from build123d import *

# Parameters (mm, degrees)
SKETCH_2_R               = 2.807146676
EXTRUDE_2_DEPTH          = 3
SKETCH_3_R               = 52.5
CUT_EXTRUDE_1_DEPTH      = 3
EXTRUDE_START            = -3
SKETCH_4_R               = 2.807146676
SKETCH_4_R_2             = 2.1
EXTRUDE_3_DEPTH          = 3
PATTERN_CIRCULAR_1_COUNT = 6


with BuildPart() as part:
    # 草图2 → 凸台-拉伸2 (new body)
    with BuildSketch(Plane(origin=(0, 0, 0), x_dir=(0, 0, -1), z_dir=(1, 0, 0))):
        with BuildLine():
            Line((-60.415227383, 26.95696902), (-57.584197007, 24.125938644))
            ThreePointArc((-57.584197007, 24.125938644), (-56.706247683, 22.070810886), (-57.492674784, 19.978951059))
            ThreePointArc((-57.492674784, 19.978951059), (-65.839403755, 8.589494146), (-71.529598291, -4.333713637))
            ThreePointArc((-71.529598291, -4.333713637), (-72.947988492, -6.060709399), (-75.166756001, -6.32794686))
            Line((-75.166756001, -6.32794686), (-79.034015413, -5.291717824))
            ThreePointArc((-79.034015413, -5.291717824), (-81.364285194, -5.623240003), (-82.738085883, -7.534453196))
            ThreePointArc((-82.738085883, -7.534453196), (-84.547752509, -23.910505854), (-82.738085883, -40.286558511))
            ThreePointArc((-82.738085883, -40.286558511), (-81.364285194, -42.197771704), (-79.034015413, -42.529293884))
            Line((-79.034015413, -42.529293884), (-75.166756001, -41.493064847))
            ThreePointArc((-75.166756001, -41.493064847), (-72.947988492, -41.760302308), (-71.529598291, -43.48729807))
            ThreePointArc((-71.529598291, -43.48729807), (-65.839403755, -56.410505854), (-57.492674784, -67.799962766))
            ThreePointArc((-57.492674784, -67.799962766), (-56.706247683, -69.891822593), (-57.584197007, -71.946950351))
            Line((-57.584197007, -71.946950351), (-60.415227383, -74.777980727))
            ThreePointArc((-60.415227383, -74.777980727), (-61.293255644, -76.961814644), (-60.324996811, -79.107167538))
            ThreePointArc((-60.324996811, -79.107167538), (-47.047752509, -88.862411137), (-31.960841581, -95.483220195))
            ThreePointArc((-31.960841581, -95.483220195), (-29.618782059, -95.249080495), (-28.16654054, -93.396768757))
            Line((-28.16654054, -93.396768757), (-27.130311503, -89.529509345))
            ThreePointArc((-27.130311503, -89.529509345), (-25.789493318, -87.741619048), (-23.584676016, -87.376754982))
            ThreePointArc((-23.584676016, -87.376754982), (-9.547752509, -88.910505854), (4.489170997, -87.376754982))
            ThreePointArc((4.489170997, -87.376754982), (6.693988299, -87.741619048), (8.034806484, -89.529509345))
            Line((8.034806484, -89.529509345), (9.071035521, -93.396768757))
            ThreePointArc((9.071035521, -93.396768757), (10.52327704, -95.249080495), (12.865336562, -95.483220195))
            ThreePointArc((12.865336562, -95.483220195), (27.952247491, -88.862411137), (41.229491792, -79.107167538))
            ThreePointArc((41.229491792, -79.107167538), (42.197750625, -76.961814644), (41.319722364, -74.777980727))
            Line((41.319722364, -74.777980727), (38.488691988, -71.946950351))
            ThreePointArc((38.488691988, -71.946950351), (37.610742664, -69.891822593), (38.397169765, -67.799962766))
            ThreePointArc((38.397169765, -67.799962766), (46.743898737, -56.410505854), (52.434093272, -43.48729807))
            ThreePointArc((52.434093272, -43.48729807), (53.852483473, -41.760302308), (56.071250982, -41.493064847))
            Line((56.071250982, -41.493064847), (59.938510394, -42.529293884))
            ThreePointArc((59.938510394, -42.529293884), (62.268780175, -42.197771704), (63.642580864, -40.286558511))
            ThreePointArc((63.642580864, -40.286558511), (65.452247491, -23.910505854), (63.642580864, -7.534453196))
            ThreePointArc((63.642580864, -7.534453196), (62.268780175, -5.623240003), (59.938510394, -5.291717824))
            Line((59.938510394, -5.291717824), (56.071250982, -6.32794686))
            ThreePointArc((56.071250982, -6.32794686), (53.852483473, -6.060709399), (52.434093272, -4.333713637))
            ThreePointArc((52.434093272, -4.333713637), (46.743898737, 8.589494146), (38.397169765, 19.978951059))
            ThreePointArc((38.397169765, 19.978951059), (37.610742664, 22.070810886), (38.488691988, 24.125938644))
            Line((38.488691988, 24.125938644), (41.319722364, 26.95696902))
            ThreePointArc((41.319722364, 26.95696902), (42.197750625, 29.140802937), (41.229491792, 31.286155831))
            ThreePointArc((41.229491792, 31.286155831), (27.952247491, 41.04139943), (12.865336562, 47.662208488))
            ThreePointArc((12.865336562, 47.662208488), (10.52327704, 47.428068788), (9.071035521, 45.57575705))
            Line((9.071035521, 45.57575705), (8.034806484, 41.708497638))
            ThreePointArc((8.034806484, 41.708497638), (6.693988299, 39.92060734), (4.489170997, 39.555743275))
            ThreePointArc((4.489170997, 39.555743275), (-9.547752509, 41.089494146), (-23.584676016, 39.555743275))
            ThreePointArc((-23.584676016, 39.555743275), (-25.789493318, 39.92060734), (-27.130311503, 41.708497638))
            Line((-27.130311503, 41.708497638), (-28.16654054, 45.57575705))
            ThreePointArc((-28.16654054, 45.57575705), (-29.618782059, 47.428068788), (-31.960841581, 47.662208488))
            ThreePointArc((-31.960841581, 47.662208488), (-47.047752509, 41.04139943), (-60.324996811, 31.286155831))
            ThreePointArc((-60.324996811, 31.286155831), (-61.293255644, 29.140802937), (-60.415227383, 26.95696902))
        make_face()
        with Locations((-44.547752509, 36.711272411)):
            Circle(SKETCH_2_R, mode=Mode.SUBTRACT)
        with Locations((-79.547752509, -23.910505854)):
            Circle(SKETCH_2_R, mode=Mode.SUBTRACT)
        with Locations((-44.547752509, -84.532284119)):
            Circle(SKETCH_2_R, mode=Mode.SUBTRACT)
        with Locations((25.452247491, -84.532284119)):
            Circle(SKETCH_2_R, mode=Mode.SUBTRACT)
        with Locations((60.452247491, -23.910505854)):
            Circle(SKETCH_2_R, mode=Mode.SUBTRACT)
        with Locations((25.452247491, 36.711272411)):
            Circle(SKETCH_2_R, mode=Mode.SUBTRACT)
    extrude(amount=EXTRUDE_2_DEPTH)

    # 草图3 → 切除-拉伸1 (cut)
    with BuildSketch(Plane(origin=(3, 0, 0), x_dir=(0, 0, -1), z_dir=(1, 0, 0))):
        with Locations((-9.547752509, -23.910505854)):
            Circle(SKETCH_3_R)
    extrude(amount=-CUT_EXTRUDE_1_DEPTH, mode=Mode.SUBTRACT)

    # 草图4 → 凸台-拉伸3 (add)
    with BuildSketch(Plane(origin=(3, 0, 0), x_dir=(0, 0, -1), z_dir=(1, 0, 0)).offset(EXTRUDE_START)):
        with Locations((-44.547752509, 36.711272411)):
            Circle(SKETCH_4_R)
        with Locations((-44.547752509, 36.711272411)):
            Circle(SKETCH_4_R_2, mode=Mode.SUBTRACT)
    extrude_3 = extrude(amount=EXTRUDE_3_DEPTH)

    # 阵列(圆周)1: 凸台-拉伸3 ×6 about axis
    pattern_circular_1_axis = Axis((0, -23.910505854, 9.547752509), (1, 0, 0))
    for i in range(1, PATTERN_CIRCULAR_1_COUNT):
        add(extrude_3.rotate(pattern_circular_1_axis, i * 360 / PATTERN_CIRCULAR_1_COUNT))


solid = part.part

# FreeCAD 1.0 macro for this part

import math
import FreeCAD as App
import Part
import Sketcher
from FreeCAD import Vector
Q = App.Units.Quantity

doc = App.newDocument("Part")
body = doc.addObject("PartDesign::Body", "Body")

# Sketch on YZ plane
sketch1 = body.newObject("Sketcher::SketchObject", "Sketch")
sketch1.AttachmentSupport = (doc.getObject("YZ_Plane"), [""])
sketch1.MapMode = "FlatFace"
sketch1.addGeometry(Part.LineSegment(Vector(26.956969, 60.415227, 0), Vector(24.125939, 57.584197, 0)), False)
sketch1.addGeometry(Part.ArcOfCircle(Part.Circle(Vector(22.004618, 59.705517, 0), Vector(0, 0, 1), 3), math.radians(-132.471424), math.radians(-45)), False)
sketch1.addGeometry(Part.ArcOfCircle(Part.Circle(Vector(-23.910506, 9.547752, 0), Vector(0, 0, 1), 65), math.radians(47.528576), math.radians(72.471424)), False)
sketch1.addGeometry(Part.ArcOfCircle(Part.Circle(Vector(-3.430169, 74.390299, 0), Vector(0, 0, 1), 3), math.radians(165), math.radians(252.471424)), False)
sketch1.addGeometry(Part.LineSegment(Vector(-6.327947, 75.166756, 0), Vector(-5.291718, 79.034015, 0)), False)
sketch1.addGeometry(Part.ArcOfCircle(Part.Circle(Vector(-8.189495, 79.810473, 0), Vector(0, 0, 1), 3), math.radians(-15), math.radians(77.388015)), False)
sketch1.addGeometry(Part.ArcOfCircle(Part.Circle(Vector(-23.910506, 9.547752, 0), Vector(0, 0, 1), 75), math.radians(77.388015), math.radians(102.611985)), False)
sketch1.addGeometry(Part.ArcOfCircle(Part.Circle(Vector(-39.631516, 79.810473, 0), Vector(0, 0, 1), 3), math.radians(102.611985), math.radians(195)), False)
sketch1.addGeometry(Part.LineSegment(Vector(-42.529294, 79.034015, 0), Vector(-41.493065, 75.166756, 0)), False)
sketch1.addGeometry(Part.ArcOfCircle(Part.Circle(Vector(-44.390842, 74.390299, 0), Vector(0, 0, 1), 3), math.radians(-72.471424), math.radians(15)), False)
sketch1.addGeometry(Part.ArcOfCircle(Part.Circle(Vector(-23.910506, 9.547753, 0), Vector(0, 0, 1), 65), math.radians(107.528576), math.radians(132.471424)), False)
sketch1.addGeometry(Part.ArcOfCircle(Part.Circle(Vector(-69.82563, 59.705517, 0), Vector(0, 0, 1), 3), math.radians(-135), math.radians(-47.528576)), False)
sketch1.addGeometry(Part.LineSegment(Vector(-71.94695, 57.584197, 0), Vector(-74.777981, 60.415227, 0)), False)
sketch1.addGeometry(Part.ArcOfCircle(Part.Circle(Vector(-76.899301, 58.293907, 0), Vector(0, 0, 1), 3), math.radians(45), math.radians(137.388015)), False)
sketch1.addGeometry(Part.ArcOfCircle(Part.Circle(Vector(-23.910506, 9.547753, 0), Vector(0, 0, 1), 75), math.radians(137.388015), math.radians(162.611985)), False)
sketch1.addGeometry(Part.ArcOfCircle(Part.Circle(Vector(-92.620312, 31.064318, 0), Vector(0, 0, 1), 3), math.radians(162.611985), math.radians(255)), False)
sketch1.addGeometry(Part.LineSegment(Vector(-93.396769, 28.166541, 0), Vector(-89.529509, 27.130312, 0)), False)
sketch1.addGeometry(Part.ArcOfCircle(Part.Circle(Vector(-90.305966, 24.232534, 0), Vector(0, 0, 1), 3), math.radians(-12.471424), math.radians(75)), False)
sketch1.addGeometry(Part.ArcOfCircle(Part.Circle(Vector(-23.910506, 9.547753, 0), Vector(0, 0, 1), 65), math.radians(167.528576), math.radians(192.471424)), False)
sketch1.addGeometry(Part.ArcOfCircle(Part.Circle(Vector(-90.305966, -5.137029, 0), Vector(0, 0, 1), 3), math.radians(-75), math.radians(12.471424)), False)
sketch1.addGeometry(Part.LineSegment(Vector(-89.529509, -8.034806, 0), Vector(-93.396769, -9.071036, 0)), False)
sketch1.addGeometry(Part.ArcOfCircle(Part.Circle(Vector(-92.620312, -11.968813, 0), Vector(0, 0, 1), 3), math.radians(105), math.radians(197.388015)), False)
sketch1.addGeometry(Part.ArcOfCircle(Part.Circle(Vector(-23.910506, 9.547753, 0), Vector(0, 0, 1), 75), math.radians(-162.611985), math.radians(-137.388015)), False)
sketch1.addGeometry(Part.ArcOfCircle(Part.Circle(Vector(-76.899301, -39.198402, 0), Vector(0, 0, 1), 3), math.radians(-137.388015), math.radians(-45)), False)
sketch1.addGeometry(Part.LineSegment(Vector(-74.777981, -41.319722, 0), Vector(-71.94695, -38.488692, 0)), False)
sketch1.addGeometry(Part.ArcOfCircle(Part.Circle(Vector(-69.82563, -40.610012, 0), Vector(0, 0, 1), 3), math.radians(47.528576), math.radians(135)), False)
sketch1.addGeometry(Part.ArcOfCircle(Part.Circle(Vector(-23.910506, 9.547752, 0), Vector(0, 0, 1), 65), math.radians(-132.471424), math.radians(-107.528576)), False)
sketch1.addGeometry(Part.ArcOfCircle(Part.Circle(Vector(-44.390842, -55.294794, 0), Vector(0, 0, 1), 3), math.radians(-15), math.radians(72.471424)), False)
sketch1.addGeometry(Part.LineSegment(Vector(-41.493065, -56.071251, 0), Vector(-42.529294, -59.93851, 0)), False)
sketch1.addGeometry(Part.ArcOfCircle(Part.Circle(Vector(-39.631516, -60.714968, 0), Vector(0, 0, 1), 3), math.radians(165), math.radians(257.388015)), False)
sketch1.addGeometry(Part.ArcOfCircle(Part.Circle(Vector(-23.910506, 9.547752, 0), Vector(0, 0, 1), 75), math.radians(-102.611985), math.radians(-77.388015)), False)
sketch1.addGeometry(Part.ArcOfCircle(Part.Circle(Vector(-8.189495, -60.714968, 0), Vector(0, 0, 1), 3), math.radians(-77.388015), math.radians(15)), False)
sketch1.addGeometry(Part.LineSegment(Vector(-5.291718, -59.93851, 0), Vector(-6.327947, -56.071251, 0)), False)
sketch1.addGeometry(Part.ArcOfCircle(Part.Circle(Vector(-3.430169, -55.294794, 0), Vector(0, 0, 1), 3), math.radians(107.528576), math.radians(195)), False)
sketch1.addGeometry(Part.ArcOfCircle(Part.Circle(Vector(-23.910506, 9.547752, 0), Vector(0, 0, 1), 65), math.radians(-72.471424), math.radians(-47.528576)), False)
sketch1.addGeometry(Part.ArcOfCircle(Part.Circle(Vector(22.004618, -40.610012, 0), Vector(0, 0, 1), 3), math.radians(45), math.radians(132.471424)), False)
sketch1.addGeometry(Part.LineSegment(Vector(24.125939, -38.488692, 0), Vector(26.956969, -41.319722, 0)), False)
sketch1.addGeometry(Part.ArcOfCircle(Part.Circle(Vector(29.078289, -39.198402, 0), Vector(0, 0, 1), 3), math.radians(-135), math.radians(-42.611985)), False)
sketch1.addGeometry(Part.ArcOfCircle(Part.Circle(Vector(-23.910506, 9.547753, 0), Vector(0, 0, 1), 75), math.radians(-42.611985), math.radians(-17.388015)), False)
sketch1.addGeometry(Part.ArcOfCircle(Part.Circle(Vector(44.7993, -11.968813, 0), Vector(0, 0, 1), 3), math.radians(-17.388015), math.radians(75)), False)
sketch1.addGeometry(Part.LineSegment(Vector(45.575757, -9.071036, 0), Vector(41.708498, -8.034806, 0)), False)
sketch1.addGeometry(Part.ArcOfCircle(Part.Circle(Vector(42.484955, -5.137029, 0), Vector(0, 0, 1), 3), math.radians(167.528576), math.radians(255)), False)
sketch1.addGeometry(Part.ArcOfCircle(Part.Circle(Vector(-23.910506, 9.547753, 0), Vector(0, 0, 1), 65), math.radians(-12.471424), math.radians(12.471424)), False)
sketch1.addGeometry(Part.ArcOfCircle(Part.Circle(Vector(42.484955, 24.232534, 0), Vector(0, 0, 1), 3), math.radians(105), math.radians(192.471424)), False)
sketch1.addGeometry(Part.LineSegment(Vector(41.708498, 27.130312, 0), Vector(45.575757, 28.166541, 0)), False)
sketch1.addGeometry(Part.ArcOfCircle(Part.Circle(Vector(44.7993, 31.064318, 0), Vector(0, 0, 1), 3), math.radians(-75), math.radians(17.388015)), False)
sketch1.addGeometry(Part.ArcOfCircle(Part.Circle(Vector(-23.910506, 9.547753, 0), Vector(0, 0, 1), 75), math.radians(17.388015), math.radians(42.611985)), False)
sketch1.addGeometry(Part.ArcOfCircle(Part.Circle(Vector(29.078289, 58.293907, 0), Vector(0, 0, 1), 3), math.radians(42.611985), math.radians(135)), False)
sketch1.addGeometry(Part.Circle(Vector(-84.532284, 44.547753, 0), Vector(0, 0, 1), 2.807147), False)
sketch1.addGeometry(Part.Circle(Vector(-23.910506, 79.547753, 0), Vector(0, 0, 1), 2.807147), False)
sketch1.addGeometry(Part.Circle(Vector(-84.532284, -25.452247, 0), Vector(0, 0, 1), 2.807147), False)
sketch1.addGeometry(Part.Circle(Vector(-23.910506, -60.452247, 0), Vector(0, 0, 1), 2.807147), False)
sketch1.addGeometry(Part.Circle(Vector(36.711272, 44.547753, 0), Vector(0, 0, 1), 2.807147), False)
sketch1.addGeometry(Part.Circle(Vector(36.711272, -25.452247, 0), Vector(0, 0, 1), 2.807147), False)
sketch1.addConstraint(Sketcher.Constraint("Tangent", 0, 2, 1, 2))
sketch1.addConstraint(Sketcher.Constraint("Tangent", 1, 1, 2, 1))
sketch1.addConstraint(Sketcher.Constraint("Tangent", 2, 2, 3, 2))
sketch1.addConstraint(Sketcher.Constraint("Tangent", 3, 1, 4, 1))
sketch1.addConstraint(Sketcher.Constraint("Tangent", 4, 2, 5, 1))
sketch1.addConstraint(Sketcher.Constraint("Tangent", 5, 2, 6, 1))
sketch1.addConstraint(Sketcher.Constraint("Tangent", 6, 2, 7, 1))
sketch1.addConstraint(Sketcher.Constraint("Tangent", 7, 2, 8, 1))
sketch1.addConstraint(Sketcher.Constraint("Tangent", 8, 2, 9, 2))
sketch1.addConstraint(Sketcher.Constraint("Tangent", 9, 1, 10, 1))
sketch1.addConstraint(Sketcher.Constraint("Tangent", 10, 2, 11, 2))
sketch1.addConstraint(Sketcher.Constraint("Tangent", 11, 1, 12, 1))
sketch1.addConstraint(Sketcher.Constraint("Tangent", 12, 2, 13, 1))
sketch1.addConstraint(Sketcher.Constraint("Tangent", 13, 2, 14, 1))
sketch1.addConstraint(Sketcher.Constraint("Tangent", 14, 2, 15, 1))
sketch1.addConstraint(Sketcher.Constraint("Tangent", 15, 2, 16, 1))
sketch1.addConstraint(Sketcher.Constraint("Tangent", 16, 2, 17, 2))
sketch1.addConstraint(Sketcher.Constraint("Tangent", 17, 1, 18, 1))
sketch1.addConstraint(Sketcher.Constraint("Tangent", 18, 2, 19, 2))
sketch1.addConstraint(Sketcher.Constraint("Tangent", 19, 1, 20, 1))
sketch1.addConstraint(Sketcher.Constraint("Tangent", 20, 2, 21, 1))
sketch1.addConstraint(Sketcher.Constraint("Tangent", 21, 2, 22, 1))
sketch1.addConstraint(Sketcher.Constraint("Tangent", 22, 2, 23, 1))
sketch1.addConstraint(Sketcher.Constraint("Tangent", 23, 2, 24, 1))
sketch1.addConstraint(Sketcher.Constraint("Tangent", 24, 2, 25, 2))
sketch1.addConstraint(Sketcher.Constraint("Tangent", 25, 1, 26, 1))
sketch1.addConstraint(Sketcher.Constraint("Tangent", 26, 2, 27, 2))
sketch1.addConstraint(Sketcher.Constraint("Tangent", 27, 1, 28, 1))
sketch1.addConstraint(Sketcher.Constraint("Tangent", 28, 2, 29, 1))
sketch1.addConstraint(Sketcher.Constraint("Tangent", 29, 2, 30, 1))
sketch1.addConstraint(Sketcher.Constraint("Tangent", 30, 2, 31, 1))
sketch1.addConstraint(Sketcher.Constraint("Tangent", 31, 2, 32, 1))
sketch1.addConstraint(Sketcher.Constraint("Tangent", 32, 2, 33, 2))
sketch1.addConstraint(Sketcher.Constraint("Tangent", 33, 1, 34, 1))
sketch1.addConstraint(Sketcher.Constraint("Tangent", 34, 2, 35, 2))
sketch1.addConstraint(Sketcher.Constraint("Tangent", 35, 1, 36, 1))
sketch1.addConstraint(Sketcher.Constraint("Tangent", 36, 2, 37, 1))
sketch1.addConstraint(Sketcher.Constraint("Tangent", 37, 2, 38, 1))
sketch1.addConstraint(Sketcher.Constraint("Tangent", 38, 2, 39, 1))
sketch1.addConstraint(Sketcher.Constraint("Tangent", 39, 2, 40, 1))
sketch1.addConstraint(Sketcher.Constraint("Tangent", 40, 2, 41, 2))
sketch1.addConstraint(Sketcher.Constraint("Tangent", 41, 1, 42, 1))
sketch1.addConstraint(Sketcher.Constraint("Tangent", 42, 2, 43, 2))
sketch1.addConstraint(Sketcher.Constraint("Tangent", 43, 1, 44, 1))
sketch1.addConstraint(Sketcher.Constraint("Tangent", 44, 2, 45, 1))
sketch1.addConstraint(Sketcher.Constraint("Tangent", 45, 2, 46, 1))
sketch1.addConstraint(Sketcher.Constraint("Tangent", 46, 2, 47, 1))
sketch1.addConstraint(Sketcher.Constraint("Tangent", 47, 2, 0, 1))
sketch1.addConstraint(Sketcher.Constraint("Coincident", 6, 3, 2, 3))
sketch1.addConstraint(Sketcher.Constraint("Coincident", 10, 3, 2, 3))
sketch1.addConstraint(Sketcher.Constraint("Coincident", 14, 3, 2, 3))
sketch1.addConstraint(Sketcher.Constraint("Coincident", 18, 3, 2, 3))
sketch1.addConstraint(Sketcher.Constraint("Coincident", 22, 3, 2, 3))
sketch1.addConstraint(Sketcher.Constraint("Coincident", 26, 3, 2, 3))
sketch1.addConstraint(Sketcher.Constraint("Coincident", 30, 3, 2, 3))
sketch1.addConstraint(Sketcher.Constraint("Coincident", 34, 3, 2, 3))
sketch1.addConstraint(Sketcher.Constraint("Coincident", 38, 3, 2, 3))
sketch1.addConstraint(Sketcher.Constraint("Coincident", 42, 3, 2, 3))
sketch1.addConstraint(Sketcher.Constraint("Coincident", 46, 3, 2, 3))
sketch1.addConstraint(Sketcher.Constraint("Equal", 1, 3))
sketch1.addConstraint(Sketcher.Constraint("Equal", 3, 5))
sketch1.addConstraint(Sketcher.Constraint("Equal", 5, 7))
sketch1.addConstraint(Sketcher.Constraint("Equal", 7, 9))
sketch1.addConstraint(Sketcher.Constraint("Equal", 2, 10))
sketch1.addConstraint(Sketcher.Constraint("Equal", 9, 11))
sketch1.addConstraint(Sketcher.Constraint("Equal", 11, 13))
sketch1.addConstraint(Sketcher.Constraint("Equal", 6, 14))
sketch1.addConstraint(Sketcher.Constraint("Equal", 13, 15))
sketch1.addConstraint(Sketcher.Constraint("Equal", 15, 17))
sketch1.addConstraint(Sketcher.Constraint("Equal", 10, 18))
sketch1.addConstraint(Sketcher.Constraint("Equal", 17, 19))
sketch1.addConstraint(Sketcher.Constraint("Equal", 19, 21))
sketch1.addConstraint(Sketcher.Constraint("Equal", 14, 22))
sketch1.addConstraint(Sketcher.Constraint("Equal", 21, 23))
sketch1.addConstraint(Sketcher.Constraint("Equal", 23, 25))
sketch1.addConstraint(Sketcher.Constraint("Equal", 18, 26))
sketch1.addConstraint(Sketcher.Constraint("Equal", 25, 27))
sketch1.addConstraint(Sketcher.Constraint("Equal", 27, 29))
sketch1.addConstraint(Sketcher.Constraint("Equal", 22, 30))
sketch1.addConstraint(Sketcher.Constraint("Equal", 29, 31))
sketch1.addConstraint(Sketcher.Constraint("Equal", 31, 33))
sketch1.addConstraint(Sketcher.Constraint("Equal", 26, 34))
sketch1.addConstraint(Sketcher.Constraint("Equal", 33, 35))
sketch1.addConstraint(Sketcher.Constraint("Equal", 35, 37))
sketch1.addConstraint(Sketcher.Constraint("Equal", 30, 38))
sketch1.addConstraint(Sketcher.Constraint("Equal", 37, 39))
sketch1.addConstraint(Sketcher.Constraint("Equal", 39, 41))
sketch1.addConstraint(Sketcher.Constraint("Equal", 34, 42))
sketch1.addConstraint(Sketcher.Constraint("Equal", 41, 43))
sketch1.addConstraint(Sketcher.Constraint("Equal", 43, 45))
sketch1.addConstraint(Sketcher.Constraint("Equal", 38, 46))
sketch1.addConstraint(Sketcher.Constraint("Equal", 45, 47))
sketch1.addConstraint(Sketcher.Constraint("Equal", 48, 49))
sketch1.addConstraint(Sketcher.Constraint("Equal", 49, 50))
sketch1.addConstraint(Sketcher.Constraint("Equal", 50, 51))
sketch1.addConstraint(Sketcher.Constraint("Equal", 51, 52))
sketch1.addConstraint(Sketcher.Constraint("Equal", 52, 53))
sketch1.addConstraint(Sketcher.Constraint("Perpendicular", 0, 12))
sketch1.addConstraint(Sketcher.Constraint("Perpendicular", 4, 16))
sketch1.addConstraint(Sketcher.Constraint("Perpendicular", 8, 20))
sketch1.addConstraint(Sketcher.Constraint("Perpendicular", 12, 24))
sketch1.addConstraint(Sketcher.Constraint("Perpendicular", 16, 28))
sketch1.addConstraint(Sketcher.Constraint("Perpendicular", 20, 32))
sketch1.addConstraint(Sketcher.Constraint("Perpendicular", 24, 36))
sketch1.addConstraint(Sketcher.Constraint("Perpendicular", 28, 40))
sketch1.addConstraint(Sketcher.Constraint("Perpendicular", 32, 44))
sketch1.addConstraint(Sketcher.Constraint("Horizontal", 5, 3, 7, 3))
sketch1.addConstraint(Sketcher.Constraint("Horizontal", 3, 3, 9, 3))
sketch1.addConstraint(Sketcher.Constraint("Horizontal", 1, 3, 11, 3))
sketch1.addConstraint(Sketcher.Constraint("Horizontal", 29, 3, 31, 3))
sketch1.addConstraint(Sketcher.Constraint("Horizontal", 25, 3, 35, 3))
sketch1.addConstraint(Sketcher.Constraint("Horizontal", 23, 3, 37, 3))
sketch1.addConstraint(Sketcher.Constraint("Horizontal", 21, 3, 39, 3))
sketch1.addConstraint(Sketcher.Constraint("Horizontal", 17, 3, 43, 3))
sketch1.addConstraint(Sketcher.Constraint("Horizontal", 48, 3, 52, 3))
sketch1.addConstraint(Sketcher.Constraint("Horizontal", 50, 3, 53, 3))
sketch1.addConstraint(Sketcher.Constraint("Vertical", 17, 3, 19, 3))
sketch1.addConstraint(Sketcher.Constraint("Vertical", 13, 3, 23, 3))
sketch1.addConstraint(Sketcher.Constraint("Vertical", 9, 3, 27, 3))
sketch1.addConstraint(Sketcher.Constraint("Vertical", 46, 3, 49, 3))
sketch1.addConstraint(Sketcher.Constraint("Vertical", 48, 3, 50, 3))
sketch1.addConstraint(Sketcher.Constraint("Vertical", 49, 3, 51, 3))
sketch1.addConstraint(Sketcher.Constraint("Vertical", 52, 3, 53, 3))
sketch1.addConstraint(Sketcher.Constraint("Equal", 0, 4))
sketch1.addConstraint(Sketcher.Constraint("Equal", 12, 16))
sketch1.addConstraint(Sketcher.Constraint("Radius", 1, Q("3 mm")))
sketch1.addConstraint(Sketcher.Constraint("Radius", 2, Q("65 mm")))
sketch1.addConstraint(Sketcher.Constraint("Radius", 6, Q("75 mm")))
sketch1.addConstraint(Sketcher.Constraint("Angle", 4, Q("75 deg")))
sketch1.addConstraint(Sketcher.Constraint("Diameter", 48, Q("5.614293 mm")))
sketch1.addConstraint(Sketcher.Constraint("DistanceY", -1, 1, 3, 3, Q("74.390299 mm")))
sketch1.addConstraint(Sketcher.Constraint("DistanceX", 13, 3, -1, 1, Q("76.899301 mm")))
sketch1.addConstraint(Sketcher.Constraint("DistanceX", -1, 1, 39, 3, Q("44.7993 mm")))
sketch1.addConstraint(Sketcher.Constraint("DistanceX", 48, 3, -1, 1, Q("84.532284 mm")))
sketch1.addConstraint(Sketcher.Constraint("DistanceY", -1, 1, 48, 3, Q("44.547753 mm")))
sketch1.addConstraint(Sketcher.Constraint("DistanceY", -1, 1, 49, 3, Q("79.547753 mm")))
sketch1.addConstraint(Sketcher.Constraint("DistanceY", 50, 3, -1, 1, Q("25.452247 mm")))
sketch1.addConstraint(Sketcher.Constraint("DistanceY", 51, 3, -1, 1, Q("60.452247 mm")))
sketch1.addConstraint(Sketcher.Constraint("DistanceX", -1, 1, 52, 3, Q("36.711272 mm")))
pad1 = body.newObject("PartDesign::Pad", "Pad")
pad1.Profile = sketch1
pad1.Length = 3

# Sketch on YZ plane
sketch2 = body.newObject("Sketcher::SketchObject", "Sketch001")
sketch2.AttachmentSupport = (doc.getObject("YZ_Plane"), [""])
sketch2.MapMode = "FlatFace"
sketch2.AttachmentOffset = App.Placement(Vector(0, 0, 3), App.Rotation())
sketch2.addGeometry(Part.Circle(Vector(-23.910506, 9.547753, 0), Vector(0, 0, 1), 52.5), False)
sketch2.addConstraint(Sketcher.Constraint("Diameter", 0, Q("105 mm")))
sketch2.addConstraint(Sketcher.Constraint("DistanceX", 0, 3, -1, 1, Q("23.910506 mm")))
sketch2.addConstraint(Sketcher.Constraint("DistanceY", -1, 1, 0, 3, Q("9.547753 mm")))
pocket1 = body.newObject("PartDesign::Pocket", "Pocket")
pocket1.Profile = sketch2
pocket1.Length = 3

# Sketch on YZ plane
sketch3 = body.newObject("Sketcher::SketchObject", "Sketch002")
sketch3.AttachmentSupport = (doc.getObject("YZ_Plane"), [""])
sketch3.MapMode = "FlatFace"
sketch3.addGeometry(Part.Circle(Vector(36.711272, 44.547753, 0), Vector(0, 0, 1), 2.807147), False)
sketch3.addGeometry(Part.Circle(Vector(36.711272, 44.547753, 0), Vector(0, 0, 1), 2.1), False)
sketch3.addConstraint(Sketcher.Constraint("Coincident", 1, 3, 0, 3))
sketch3.addConstraint(Sketcher.Constraint("Diameter", 1, Q("4.2 mm")))
sketch3.addConstraint(Sketcher.Constraint("Diameter", 0, Q("5.614293 mm")))
sketch3.addConstraint(Sketcher.Constraint("DistanceX", -1, 1, 0, 3, Q("36.711272 mm")))
sketch3.addConstraint(Sketcher.Constraint("DistanceY", -1, 1, 0, 3, Q("44.547753 mm")))
pad2 = body.newObject("PartDesign::Pad", "Pad001")
pad2.Profile = sketch3
pad2.Length = 3
doc.recompute()

datumline = body.newObject("PartDesign::Line", "DatumLine")
datumline.Placement = App.Placement(Vector(0, -23.910506, 9.547753), App.Rotation(Vector(0, 0, 1), Vector(1, 0, 0)))
polarpattern = body.newObject("PartDesign::PolarPattern", "PolarPattern")
polarpattern.Originals = [pad2]
polarpattern.Axis = (datumline, [""])
polarpattern.Angle = 360
polarpattern.Occurrences = 6
body.Tip = polarpattern

doc.recompute()
